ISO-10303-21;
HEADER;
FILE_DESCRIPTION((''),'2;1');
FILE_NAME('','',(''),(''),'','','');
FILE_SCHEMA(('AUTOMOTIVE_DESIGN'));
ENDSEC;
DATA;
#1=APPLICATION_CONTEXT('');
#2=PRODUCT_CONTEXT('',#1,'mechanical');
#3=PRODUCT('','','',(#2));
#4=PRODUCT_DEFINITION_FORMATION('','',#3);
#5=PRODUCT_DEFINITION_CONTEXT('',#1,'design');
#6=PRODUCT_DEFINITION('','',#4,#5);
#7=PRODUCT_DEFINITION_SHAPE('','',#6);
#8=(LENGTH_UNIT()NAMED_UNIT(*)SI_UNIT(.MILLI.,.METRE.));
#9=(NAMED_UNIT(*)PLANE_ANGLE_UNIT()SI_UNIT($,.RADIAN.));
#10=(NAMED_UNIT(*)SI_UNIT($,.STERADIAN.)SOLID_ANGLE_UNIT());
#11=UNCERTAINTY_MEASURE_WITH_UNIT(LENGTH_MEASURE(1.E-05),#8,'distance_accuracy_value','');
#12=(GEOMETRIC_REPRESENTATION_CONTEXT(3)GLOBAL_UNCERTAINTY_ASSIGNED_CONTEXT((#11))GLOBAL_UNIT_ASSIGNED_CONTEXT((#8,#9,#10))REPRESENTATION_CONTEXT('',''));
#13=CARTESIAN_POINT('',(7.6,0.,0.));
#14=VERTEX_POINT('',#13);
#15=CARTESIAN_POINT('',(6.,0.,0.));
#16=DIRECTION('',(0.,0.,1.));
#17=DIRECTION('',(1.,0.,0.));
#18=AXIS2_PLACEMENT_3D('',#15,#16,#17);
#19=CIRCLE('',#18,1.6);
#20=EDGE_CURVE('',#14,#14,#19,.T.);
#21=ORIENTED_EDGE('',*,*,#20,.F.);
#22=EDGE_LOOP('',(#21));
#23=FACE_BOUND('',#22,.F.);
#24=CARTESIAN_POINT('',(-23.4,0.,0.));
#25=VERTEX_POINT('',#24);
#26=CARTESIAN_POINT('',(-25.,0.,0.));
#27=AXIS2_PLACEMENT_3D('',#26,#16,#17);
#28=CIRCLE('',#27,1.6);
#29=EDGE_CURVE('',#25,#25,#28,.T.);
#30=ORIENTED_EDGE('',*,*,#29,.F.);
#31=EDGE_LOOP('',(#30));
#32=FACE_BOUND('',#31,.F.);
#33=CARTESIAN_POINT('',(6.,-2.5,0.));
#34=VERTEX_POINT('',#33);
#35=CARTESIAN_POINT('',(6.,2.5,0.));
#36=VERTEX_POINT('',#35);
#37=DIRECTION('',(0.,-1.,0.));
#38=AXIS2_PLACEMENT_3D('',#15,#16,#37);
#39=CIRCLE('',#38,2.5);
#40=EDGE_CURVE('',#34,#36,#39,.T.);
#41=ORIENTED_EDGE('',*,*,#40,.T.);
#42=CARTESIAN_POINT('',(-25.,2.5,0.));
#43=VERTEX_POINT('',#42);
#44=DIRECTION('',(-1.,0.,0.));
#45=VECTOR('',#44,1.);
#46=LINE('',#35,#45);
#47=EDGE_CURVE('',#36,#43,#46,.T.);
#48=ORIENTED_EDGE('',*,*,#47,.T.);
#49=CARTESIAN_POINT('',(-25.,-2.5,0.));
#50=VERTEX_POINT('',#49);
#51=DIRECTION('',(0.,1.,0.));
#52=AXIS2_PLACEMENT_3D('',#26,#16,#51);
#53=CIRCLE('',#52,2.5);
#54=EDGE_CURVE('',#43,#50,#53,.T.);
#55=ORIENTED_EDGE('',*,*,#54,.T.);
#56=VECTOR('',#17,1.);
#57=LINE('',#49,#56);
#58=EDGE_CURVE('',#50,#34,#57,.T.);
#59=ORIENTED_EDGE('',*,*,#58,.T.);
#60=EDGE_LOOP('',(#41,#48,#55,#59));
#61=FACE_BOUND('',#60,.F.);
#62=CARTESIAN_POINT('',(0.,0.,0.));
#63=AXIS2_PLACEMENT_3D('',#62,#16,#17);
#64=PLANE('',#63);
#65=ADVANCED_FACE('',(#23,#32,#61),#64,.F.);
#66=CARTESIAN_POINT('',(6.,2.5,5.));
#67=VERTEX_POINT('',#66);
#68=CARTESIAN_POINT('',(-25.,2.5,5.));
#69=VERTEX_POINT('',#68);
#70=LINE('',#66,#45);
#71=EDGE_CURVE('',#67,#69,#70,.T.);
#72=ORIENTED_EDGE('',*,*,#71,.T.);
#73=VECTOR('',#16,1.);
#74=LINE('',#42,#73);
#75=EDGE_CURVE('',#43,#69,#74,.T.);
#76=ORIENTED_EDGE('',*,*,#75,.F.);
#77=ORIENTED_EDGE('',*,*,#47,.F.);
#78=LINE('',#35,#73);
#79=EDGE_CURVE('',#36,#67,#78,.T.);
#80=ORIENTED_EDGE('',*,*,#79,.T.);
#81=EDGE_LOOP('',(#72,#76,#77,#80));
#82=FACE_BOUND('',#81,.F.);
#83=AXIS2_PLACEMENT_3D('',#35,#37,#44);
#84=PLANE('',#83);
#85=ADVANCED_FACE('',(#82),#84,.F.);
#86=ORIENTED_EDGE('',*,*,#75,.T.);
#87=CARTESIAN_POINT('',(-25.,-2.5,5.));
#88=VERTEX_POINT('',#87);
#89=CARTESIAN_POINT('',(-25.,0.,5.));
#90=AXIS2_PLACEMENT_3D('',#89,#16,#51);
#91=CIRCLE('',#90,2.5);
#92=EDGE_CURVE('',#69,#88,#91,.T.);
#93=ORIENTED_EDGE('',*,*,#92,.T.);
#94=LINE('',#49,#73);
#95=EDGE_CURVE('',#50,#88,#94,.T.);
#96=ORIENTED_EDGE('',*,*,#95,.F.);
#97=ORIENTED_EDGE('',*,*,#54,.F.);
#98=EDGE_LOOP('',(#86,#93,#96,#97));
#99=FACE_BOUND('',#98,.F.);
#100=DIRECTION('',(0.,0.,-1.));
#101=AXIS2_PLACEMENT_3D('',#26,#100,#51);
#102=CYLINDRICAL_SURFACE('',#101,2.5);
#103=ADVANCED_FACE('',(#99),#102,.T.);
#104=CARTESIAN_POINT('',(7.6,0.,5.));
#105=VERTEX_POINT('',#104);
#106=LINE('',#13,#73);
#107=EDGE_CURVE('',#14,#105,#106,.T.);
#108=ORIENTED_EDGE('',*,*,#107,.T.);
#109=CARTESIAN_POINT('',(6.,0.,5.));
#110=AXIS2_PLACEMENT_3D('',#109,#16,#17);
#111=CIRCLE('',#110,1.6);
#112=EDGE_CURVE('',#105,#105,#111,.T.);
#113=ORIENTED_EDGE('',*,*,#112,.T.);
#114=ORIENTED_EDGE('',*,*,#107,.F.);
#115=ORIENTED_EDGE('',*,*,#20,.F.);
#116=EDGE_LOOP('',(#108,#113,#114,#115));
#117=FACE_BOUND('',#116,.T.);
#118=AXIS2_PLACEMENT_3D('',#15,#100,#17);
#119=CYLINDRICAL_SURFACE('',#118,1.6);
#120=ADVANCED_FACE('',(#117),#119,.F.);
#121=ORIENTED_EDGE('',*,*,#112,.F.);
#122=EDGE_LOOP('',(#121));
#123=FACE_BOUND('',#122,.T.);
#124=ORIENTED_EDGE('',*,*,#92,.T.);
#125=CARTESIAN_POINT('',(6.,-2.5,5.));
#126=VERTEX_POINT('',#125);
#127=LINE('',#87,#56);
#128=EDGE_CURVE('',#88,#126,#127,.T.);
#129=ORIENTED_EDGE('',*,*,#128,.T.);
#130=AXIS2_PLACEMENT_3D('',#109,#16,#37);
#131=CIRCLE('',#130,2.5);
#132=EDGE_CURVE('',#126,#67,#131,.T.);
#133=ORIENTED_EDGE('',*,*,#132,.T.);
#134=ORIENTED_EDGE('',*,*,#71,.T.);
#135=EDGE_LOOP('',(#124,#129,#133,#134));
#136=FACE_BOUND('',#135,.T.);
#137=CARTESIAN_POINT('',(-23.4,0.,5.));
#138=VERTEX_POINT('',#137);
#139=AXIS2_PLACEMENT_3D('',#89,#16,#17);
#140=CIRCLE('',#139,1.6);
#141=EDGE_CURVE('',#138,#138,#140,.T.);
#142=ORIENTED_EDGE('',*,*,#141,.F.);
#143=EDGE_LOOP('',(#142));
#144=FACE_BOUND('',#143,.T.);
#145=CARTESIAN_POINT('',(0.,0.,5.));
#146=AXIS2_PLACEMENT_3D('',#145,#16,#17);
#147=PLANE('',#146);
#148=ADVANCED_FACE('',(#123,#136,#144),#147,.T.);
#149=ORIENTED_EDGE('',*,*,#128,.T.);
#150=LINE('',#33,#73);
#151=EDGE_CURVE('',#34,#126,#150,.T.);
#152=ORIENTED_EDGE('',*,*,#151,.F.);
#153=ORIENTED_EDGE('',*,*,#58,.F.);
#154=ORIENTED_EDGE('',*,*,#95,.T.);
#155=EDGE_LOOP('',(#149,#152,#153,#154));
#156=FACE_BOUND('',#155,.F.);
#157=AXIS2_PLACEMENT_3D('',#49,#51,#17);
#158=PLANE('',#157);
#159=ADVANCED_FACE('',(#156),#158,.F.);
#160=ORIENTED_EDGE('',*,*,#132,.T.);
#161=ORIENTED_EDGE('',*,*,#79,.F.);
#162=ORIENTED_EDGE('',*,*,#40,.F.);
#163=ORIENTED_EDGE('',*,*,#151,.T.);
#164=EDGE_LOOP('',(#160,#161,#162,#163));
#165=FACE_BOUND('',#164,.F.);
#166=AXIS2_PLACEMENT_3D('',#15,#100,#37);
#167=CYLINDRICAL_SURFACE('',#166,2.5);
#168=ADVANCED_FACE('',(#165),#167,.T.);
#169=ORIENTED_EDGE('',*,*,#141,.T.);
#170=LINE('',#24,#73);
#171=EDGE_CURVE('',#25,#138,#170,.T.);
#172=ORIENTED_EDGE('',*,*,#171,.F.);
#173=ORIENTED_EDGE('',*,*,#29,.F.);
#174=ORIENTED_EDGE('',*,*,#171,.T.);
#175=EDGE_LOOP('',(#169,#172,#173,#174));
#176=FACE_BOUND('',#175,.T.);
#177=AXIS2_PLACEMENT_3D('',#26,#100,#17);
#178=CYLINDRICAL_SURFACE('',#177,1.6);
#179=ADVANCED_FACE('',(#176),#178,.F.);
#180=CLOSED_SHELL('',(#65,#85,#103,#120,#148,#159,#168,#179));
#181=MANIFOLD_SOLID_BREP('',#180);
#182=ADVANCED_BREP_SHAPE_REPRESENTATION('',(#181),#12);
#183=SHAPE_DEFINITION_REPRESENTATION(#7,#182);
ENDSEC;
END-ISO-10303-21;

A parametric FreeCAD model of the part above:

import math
import FreeCAD as App
import Part
import Sketcher

V = App.Vector

doc = App.newDocument("Part")
body = doc.addObject("PartDesign::Body", "Body")

sketch1 = body.newObject("Sketcher::SketchObject", "Sketch")
sketch1.AttachmentSupport = (doc.getObject("XY_Plane"), [""])
sketch1.MapMode = "FlatFace"
sketch1.addGeometry([
    Part.ArcOfCircle(Part.Circle(V(-25, 0, 0), V(0, 0, 1), 2.5), math.radians(90), math.radians(270)),
    Part.LineSegment(V(-25, -2.5, 0), V(6, -2.5, 0)),
    Part.ArcOfCircle(Part.Circle(V(6, 0, 0), V(0, 0, 1), 2.5), math.radians(-90), math.radians(90)),
    Part.LineSegment(V(6, 2.5, 0), V(-25, 2.5, 0)),
    Part.Circle(V(-25, 0, 0), V(0, 0, 1), 1.6),
    Part.Circle(V(6, 0, 0), V(0, 0, 1), 1.6),
], False)
sketch1.addConstraint([
    Sketcher.Constraint("Tangent", 0, 2, 1, 1),
    Sketcher.Constraint("Tangent", 1, 2, 2, 1),
    Sketcher.Constraint("Tangent", 2, 2, 3, 1),
    Sketcher.Constraint("Tangent", 3, 2, 0, 1),
    Sketcher.Constraint("Horizontal", 1),
    Sketcher.Constraint("Horizontal", 3),
    Sketcher.Constraint("Coincident", 4, 3, 0, 3),
    Sketcher.Constraint("Coincident", 5, 3, 2, 3),
    Sketcher.Constraint("Equal", 4, 5),
    Sketcher.Constraint("PointOnObject", 0, 3, -1),
    Sketcher.Constraint("Diameter", 4, 3.2),
    Sketcher.Constraint("Radius", 0, 2.5),
    Sketcher.Constraint("DistanceX", 1, 1, 1, 2, 31.0),
    Sketcher.Constraint("DistanceX", 0, 3, -1, 1, 25.0),
])
pad1 = body.newObject("PartDesign::Pad", "Pad")
pad1.Profile = sketch1
pad1.Length = 5

doc.recompute()
